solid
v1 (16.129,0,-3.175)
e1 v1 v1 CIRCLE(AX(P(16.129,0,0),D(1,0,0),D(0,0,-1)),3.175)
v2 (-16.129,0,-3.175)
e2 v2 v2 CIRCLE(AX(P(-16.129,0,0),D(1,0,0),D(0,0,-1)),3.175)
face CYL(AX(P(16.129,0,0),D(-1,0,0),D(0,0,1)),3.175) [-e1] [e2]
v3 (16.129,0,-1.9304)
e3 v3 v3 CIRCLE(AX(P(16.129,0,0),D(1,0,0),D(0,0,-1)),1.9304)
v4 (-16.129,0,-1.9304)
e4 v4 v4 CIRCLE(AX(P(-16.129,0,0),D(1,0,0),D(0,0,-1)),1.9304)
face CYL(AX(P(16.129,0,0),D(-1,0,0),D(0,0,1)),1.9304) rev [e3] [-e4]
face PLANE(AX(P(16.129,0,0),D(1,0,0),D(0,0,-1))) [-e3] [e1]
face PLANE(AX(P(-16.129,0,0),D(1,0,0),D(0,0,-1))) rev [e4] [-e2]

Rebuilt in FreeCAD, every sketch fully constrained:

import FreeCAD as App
import Part
import Sketcher
Q = App.Units.Quantity

doc = App.newDocument("Part")
params = doc.addObject("Spreadsheet::Sheet", "Params")
for row, (alias, value) in enumerate([
    ("sketch1_diameter", "0.25 in"),
    ("sketch1_diameter2", "0.152 in"),
    ("pad1_length", "1.27 in"),
], start=1):
    params.set(f"A{row}", alias)
    params.set(f"B{row}", "=" + value)
    params.setAlias(f"B{row}", alias)

body = doc.addObject("PartDesign::Body", "Body")

sketch1 = body.newObject("Sketcher::SketchObject", "Sketch")
sketch1.AttachmentSupport = (doc.getObject("YZ_Plane"), [""])
sketch1.MapMode = "FlatFace"
sketch1.addGeometry(Part.Circle(App.Vector(0, 0, 0), App.Vector(0, 0, 1), 3.2), False)
sketch1.addGeometry(Part.Circle(App.Vector(0, 0, 0), App.Vector(0, 0, 1), 1.9), False)
sketch1.addConstraint(Sketcher.Constraint("Coincident", 0, 3, -1, 1))
sketch1.addConstraint(Sketcher.Constraint("Coincident", 1, 3, -1, 1))
sketch1.addConstraint(Sketcher.Constraint("Diameter", 0, Q("0.25 in")))
sketch1.addConstraint(Sketcher.Constraint("Diameter", 1, Q("0.152 in")))
sketch1.setExpression("Constraints[2]", "Params.sketch1_diameter")
sketch1.setExpression("Constraints[3]", "Params.sketch1_diameter2")
pad1 = body.newObject("PartDesign::Pad", "Pad")
pad1.Profile = sketch1
pad1.setExpression("Length", "Params.pad1_length")
pad1.Midplane = True

doc.recompute()
